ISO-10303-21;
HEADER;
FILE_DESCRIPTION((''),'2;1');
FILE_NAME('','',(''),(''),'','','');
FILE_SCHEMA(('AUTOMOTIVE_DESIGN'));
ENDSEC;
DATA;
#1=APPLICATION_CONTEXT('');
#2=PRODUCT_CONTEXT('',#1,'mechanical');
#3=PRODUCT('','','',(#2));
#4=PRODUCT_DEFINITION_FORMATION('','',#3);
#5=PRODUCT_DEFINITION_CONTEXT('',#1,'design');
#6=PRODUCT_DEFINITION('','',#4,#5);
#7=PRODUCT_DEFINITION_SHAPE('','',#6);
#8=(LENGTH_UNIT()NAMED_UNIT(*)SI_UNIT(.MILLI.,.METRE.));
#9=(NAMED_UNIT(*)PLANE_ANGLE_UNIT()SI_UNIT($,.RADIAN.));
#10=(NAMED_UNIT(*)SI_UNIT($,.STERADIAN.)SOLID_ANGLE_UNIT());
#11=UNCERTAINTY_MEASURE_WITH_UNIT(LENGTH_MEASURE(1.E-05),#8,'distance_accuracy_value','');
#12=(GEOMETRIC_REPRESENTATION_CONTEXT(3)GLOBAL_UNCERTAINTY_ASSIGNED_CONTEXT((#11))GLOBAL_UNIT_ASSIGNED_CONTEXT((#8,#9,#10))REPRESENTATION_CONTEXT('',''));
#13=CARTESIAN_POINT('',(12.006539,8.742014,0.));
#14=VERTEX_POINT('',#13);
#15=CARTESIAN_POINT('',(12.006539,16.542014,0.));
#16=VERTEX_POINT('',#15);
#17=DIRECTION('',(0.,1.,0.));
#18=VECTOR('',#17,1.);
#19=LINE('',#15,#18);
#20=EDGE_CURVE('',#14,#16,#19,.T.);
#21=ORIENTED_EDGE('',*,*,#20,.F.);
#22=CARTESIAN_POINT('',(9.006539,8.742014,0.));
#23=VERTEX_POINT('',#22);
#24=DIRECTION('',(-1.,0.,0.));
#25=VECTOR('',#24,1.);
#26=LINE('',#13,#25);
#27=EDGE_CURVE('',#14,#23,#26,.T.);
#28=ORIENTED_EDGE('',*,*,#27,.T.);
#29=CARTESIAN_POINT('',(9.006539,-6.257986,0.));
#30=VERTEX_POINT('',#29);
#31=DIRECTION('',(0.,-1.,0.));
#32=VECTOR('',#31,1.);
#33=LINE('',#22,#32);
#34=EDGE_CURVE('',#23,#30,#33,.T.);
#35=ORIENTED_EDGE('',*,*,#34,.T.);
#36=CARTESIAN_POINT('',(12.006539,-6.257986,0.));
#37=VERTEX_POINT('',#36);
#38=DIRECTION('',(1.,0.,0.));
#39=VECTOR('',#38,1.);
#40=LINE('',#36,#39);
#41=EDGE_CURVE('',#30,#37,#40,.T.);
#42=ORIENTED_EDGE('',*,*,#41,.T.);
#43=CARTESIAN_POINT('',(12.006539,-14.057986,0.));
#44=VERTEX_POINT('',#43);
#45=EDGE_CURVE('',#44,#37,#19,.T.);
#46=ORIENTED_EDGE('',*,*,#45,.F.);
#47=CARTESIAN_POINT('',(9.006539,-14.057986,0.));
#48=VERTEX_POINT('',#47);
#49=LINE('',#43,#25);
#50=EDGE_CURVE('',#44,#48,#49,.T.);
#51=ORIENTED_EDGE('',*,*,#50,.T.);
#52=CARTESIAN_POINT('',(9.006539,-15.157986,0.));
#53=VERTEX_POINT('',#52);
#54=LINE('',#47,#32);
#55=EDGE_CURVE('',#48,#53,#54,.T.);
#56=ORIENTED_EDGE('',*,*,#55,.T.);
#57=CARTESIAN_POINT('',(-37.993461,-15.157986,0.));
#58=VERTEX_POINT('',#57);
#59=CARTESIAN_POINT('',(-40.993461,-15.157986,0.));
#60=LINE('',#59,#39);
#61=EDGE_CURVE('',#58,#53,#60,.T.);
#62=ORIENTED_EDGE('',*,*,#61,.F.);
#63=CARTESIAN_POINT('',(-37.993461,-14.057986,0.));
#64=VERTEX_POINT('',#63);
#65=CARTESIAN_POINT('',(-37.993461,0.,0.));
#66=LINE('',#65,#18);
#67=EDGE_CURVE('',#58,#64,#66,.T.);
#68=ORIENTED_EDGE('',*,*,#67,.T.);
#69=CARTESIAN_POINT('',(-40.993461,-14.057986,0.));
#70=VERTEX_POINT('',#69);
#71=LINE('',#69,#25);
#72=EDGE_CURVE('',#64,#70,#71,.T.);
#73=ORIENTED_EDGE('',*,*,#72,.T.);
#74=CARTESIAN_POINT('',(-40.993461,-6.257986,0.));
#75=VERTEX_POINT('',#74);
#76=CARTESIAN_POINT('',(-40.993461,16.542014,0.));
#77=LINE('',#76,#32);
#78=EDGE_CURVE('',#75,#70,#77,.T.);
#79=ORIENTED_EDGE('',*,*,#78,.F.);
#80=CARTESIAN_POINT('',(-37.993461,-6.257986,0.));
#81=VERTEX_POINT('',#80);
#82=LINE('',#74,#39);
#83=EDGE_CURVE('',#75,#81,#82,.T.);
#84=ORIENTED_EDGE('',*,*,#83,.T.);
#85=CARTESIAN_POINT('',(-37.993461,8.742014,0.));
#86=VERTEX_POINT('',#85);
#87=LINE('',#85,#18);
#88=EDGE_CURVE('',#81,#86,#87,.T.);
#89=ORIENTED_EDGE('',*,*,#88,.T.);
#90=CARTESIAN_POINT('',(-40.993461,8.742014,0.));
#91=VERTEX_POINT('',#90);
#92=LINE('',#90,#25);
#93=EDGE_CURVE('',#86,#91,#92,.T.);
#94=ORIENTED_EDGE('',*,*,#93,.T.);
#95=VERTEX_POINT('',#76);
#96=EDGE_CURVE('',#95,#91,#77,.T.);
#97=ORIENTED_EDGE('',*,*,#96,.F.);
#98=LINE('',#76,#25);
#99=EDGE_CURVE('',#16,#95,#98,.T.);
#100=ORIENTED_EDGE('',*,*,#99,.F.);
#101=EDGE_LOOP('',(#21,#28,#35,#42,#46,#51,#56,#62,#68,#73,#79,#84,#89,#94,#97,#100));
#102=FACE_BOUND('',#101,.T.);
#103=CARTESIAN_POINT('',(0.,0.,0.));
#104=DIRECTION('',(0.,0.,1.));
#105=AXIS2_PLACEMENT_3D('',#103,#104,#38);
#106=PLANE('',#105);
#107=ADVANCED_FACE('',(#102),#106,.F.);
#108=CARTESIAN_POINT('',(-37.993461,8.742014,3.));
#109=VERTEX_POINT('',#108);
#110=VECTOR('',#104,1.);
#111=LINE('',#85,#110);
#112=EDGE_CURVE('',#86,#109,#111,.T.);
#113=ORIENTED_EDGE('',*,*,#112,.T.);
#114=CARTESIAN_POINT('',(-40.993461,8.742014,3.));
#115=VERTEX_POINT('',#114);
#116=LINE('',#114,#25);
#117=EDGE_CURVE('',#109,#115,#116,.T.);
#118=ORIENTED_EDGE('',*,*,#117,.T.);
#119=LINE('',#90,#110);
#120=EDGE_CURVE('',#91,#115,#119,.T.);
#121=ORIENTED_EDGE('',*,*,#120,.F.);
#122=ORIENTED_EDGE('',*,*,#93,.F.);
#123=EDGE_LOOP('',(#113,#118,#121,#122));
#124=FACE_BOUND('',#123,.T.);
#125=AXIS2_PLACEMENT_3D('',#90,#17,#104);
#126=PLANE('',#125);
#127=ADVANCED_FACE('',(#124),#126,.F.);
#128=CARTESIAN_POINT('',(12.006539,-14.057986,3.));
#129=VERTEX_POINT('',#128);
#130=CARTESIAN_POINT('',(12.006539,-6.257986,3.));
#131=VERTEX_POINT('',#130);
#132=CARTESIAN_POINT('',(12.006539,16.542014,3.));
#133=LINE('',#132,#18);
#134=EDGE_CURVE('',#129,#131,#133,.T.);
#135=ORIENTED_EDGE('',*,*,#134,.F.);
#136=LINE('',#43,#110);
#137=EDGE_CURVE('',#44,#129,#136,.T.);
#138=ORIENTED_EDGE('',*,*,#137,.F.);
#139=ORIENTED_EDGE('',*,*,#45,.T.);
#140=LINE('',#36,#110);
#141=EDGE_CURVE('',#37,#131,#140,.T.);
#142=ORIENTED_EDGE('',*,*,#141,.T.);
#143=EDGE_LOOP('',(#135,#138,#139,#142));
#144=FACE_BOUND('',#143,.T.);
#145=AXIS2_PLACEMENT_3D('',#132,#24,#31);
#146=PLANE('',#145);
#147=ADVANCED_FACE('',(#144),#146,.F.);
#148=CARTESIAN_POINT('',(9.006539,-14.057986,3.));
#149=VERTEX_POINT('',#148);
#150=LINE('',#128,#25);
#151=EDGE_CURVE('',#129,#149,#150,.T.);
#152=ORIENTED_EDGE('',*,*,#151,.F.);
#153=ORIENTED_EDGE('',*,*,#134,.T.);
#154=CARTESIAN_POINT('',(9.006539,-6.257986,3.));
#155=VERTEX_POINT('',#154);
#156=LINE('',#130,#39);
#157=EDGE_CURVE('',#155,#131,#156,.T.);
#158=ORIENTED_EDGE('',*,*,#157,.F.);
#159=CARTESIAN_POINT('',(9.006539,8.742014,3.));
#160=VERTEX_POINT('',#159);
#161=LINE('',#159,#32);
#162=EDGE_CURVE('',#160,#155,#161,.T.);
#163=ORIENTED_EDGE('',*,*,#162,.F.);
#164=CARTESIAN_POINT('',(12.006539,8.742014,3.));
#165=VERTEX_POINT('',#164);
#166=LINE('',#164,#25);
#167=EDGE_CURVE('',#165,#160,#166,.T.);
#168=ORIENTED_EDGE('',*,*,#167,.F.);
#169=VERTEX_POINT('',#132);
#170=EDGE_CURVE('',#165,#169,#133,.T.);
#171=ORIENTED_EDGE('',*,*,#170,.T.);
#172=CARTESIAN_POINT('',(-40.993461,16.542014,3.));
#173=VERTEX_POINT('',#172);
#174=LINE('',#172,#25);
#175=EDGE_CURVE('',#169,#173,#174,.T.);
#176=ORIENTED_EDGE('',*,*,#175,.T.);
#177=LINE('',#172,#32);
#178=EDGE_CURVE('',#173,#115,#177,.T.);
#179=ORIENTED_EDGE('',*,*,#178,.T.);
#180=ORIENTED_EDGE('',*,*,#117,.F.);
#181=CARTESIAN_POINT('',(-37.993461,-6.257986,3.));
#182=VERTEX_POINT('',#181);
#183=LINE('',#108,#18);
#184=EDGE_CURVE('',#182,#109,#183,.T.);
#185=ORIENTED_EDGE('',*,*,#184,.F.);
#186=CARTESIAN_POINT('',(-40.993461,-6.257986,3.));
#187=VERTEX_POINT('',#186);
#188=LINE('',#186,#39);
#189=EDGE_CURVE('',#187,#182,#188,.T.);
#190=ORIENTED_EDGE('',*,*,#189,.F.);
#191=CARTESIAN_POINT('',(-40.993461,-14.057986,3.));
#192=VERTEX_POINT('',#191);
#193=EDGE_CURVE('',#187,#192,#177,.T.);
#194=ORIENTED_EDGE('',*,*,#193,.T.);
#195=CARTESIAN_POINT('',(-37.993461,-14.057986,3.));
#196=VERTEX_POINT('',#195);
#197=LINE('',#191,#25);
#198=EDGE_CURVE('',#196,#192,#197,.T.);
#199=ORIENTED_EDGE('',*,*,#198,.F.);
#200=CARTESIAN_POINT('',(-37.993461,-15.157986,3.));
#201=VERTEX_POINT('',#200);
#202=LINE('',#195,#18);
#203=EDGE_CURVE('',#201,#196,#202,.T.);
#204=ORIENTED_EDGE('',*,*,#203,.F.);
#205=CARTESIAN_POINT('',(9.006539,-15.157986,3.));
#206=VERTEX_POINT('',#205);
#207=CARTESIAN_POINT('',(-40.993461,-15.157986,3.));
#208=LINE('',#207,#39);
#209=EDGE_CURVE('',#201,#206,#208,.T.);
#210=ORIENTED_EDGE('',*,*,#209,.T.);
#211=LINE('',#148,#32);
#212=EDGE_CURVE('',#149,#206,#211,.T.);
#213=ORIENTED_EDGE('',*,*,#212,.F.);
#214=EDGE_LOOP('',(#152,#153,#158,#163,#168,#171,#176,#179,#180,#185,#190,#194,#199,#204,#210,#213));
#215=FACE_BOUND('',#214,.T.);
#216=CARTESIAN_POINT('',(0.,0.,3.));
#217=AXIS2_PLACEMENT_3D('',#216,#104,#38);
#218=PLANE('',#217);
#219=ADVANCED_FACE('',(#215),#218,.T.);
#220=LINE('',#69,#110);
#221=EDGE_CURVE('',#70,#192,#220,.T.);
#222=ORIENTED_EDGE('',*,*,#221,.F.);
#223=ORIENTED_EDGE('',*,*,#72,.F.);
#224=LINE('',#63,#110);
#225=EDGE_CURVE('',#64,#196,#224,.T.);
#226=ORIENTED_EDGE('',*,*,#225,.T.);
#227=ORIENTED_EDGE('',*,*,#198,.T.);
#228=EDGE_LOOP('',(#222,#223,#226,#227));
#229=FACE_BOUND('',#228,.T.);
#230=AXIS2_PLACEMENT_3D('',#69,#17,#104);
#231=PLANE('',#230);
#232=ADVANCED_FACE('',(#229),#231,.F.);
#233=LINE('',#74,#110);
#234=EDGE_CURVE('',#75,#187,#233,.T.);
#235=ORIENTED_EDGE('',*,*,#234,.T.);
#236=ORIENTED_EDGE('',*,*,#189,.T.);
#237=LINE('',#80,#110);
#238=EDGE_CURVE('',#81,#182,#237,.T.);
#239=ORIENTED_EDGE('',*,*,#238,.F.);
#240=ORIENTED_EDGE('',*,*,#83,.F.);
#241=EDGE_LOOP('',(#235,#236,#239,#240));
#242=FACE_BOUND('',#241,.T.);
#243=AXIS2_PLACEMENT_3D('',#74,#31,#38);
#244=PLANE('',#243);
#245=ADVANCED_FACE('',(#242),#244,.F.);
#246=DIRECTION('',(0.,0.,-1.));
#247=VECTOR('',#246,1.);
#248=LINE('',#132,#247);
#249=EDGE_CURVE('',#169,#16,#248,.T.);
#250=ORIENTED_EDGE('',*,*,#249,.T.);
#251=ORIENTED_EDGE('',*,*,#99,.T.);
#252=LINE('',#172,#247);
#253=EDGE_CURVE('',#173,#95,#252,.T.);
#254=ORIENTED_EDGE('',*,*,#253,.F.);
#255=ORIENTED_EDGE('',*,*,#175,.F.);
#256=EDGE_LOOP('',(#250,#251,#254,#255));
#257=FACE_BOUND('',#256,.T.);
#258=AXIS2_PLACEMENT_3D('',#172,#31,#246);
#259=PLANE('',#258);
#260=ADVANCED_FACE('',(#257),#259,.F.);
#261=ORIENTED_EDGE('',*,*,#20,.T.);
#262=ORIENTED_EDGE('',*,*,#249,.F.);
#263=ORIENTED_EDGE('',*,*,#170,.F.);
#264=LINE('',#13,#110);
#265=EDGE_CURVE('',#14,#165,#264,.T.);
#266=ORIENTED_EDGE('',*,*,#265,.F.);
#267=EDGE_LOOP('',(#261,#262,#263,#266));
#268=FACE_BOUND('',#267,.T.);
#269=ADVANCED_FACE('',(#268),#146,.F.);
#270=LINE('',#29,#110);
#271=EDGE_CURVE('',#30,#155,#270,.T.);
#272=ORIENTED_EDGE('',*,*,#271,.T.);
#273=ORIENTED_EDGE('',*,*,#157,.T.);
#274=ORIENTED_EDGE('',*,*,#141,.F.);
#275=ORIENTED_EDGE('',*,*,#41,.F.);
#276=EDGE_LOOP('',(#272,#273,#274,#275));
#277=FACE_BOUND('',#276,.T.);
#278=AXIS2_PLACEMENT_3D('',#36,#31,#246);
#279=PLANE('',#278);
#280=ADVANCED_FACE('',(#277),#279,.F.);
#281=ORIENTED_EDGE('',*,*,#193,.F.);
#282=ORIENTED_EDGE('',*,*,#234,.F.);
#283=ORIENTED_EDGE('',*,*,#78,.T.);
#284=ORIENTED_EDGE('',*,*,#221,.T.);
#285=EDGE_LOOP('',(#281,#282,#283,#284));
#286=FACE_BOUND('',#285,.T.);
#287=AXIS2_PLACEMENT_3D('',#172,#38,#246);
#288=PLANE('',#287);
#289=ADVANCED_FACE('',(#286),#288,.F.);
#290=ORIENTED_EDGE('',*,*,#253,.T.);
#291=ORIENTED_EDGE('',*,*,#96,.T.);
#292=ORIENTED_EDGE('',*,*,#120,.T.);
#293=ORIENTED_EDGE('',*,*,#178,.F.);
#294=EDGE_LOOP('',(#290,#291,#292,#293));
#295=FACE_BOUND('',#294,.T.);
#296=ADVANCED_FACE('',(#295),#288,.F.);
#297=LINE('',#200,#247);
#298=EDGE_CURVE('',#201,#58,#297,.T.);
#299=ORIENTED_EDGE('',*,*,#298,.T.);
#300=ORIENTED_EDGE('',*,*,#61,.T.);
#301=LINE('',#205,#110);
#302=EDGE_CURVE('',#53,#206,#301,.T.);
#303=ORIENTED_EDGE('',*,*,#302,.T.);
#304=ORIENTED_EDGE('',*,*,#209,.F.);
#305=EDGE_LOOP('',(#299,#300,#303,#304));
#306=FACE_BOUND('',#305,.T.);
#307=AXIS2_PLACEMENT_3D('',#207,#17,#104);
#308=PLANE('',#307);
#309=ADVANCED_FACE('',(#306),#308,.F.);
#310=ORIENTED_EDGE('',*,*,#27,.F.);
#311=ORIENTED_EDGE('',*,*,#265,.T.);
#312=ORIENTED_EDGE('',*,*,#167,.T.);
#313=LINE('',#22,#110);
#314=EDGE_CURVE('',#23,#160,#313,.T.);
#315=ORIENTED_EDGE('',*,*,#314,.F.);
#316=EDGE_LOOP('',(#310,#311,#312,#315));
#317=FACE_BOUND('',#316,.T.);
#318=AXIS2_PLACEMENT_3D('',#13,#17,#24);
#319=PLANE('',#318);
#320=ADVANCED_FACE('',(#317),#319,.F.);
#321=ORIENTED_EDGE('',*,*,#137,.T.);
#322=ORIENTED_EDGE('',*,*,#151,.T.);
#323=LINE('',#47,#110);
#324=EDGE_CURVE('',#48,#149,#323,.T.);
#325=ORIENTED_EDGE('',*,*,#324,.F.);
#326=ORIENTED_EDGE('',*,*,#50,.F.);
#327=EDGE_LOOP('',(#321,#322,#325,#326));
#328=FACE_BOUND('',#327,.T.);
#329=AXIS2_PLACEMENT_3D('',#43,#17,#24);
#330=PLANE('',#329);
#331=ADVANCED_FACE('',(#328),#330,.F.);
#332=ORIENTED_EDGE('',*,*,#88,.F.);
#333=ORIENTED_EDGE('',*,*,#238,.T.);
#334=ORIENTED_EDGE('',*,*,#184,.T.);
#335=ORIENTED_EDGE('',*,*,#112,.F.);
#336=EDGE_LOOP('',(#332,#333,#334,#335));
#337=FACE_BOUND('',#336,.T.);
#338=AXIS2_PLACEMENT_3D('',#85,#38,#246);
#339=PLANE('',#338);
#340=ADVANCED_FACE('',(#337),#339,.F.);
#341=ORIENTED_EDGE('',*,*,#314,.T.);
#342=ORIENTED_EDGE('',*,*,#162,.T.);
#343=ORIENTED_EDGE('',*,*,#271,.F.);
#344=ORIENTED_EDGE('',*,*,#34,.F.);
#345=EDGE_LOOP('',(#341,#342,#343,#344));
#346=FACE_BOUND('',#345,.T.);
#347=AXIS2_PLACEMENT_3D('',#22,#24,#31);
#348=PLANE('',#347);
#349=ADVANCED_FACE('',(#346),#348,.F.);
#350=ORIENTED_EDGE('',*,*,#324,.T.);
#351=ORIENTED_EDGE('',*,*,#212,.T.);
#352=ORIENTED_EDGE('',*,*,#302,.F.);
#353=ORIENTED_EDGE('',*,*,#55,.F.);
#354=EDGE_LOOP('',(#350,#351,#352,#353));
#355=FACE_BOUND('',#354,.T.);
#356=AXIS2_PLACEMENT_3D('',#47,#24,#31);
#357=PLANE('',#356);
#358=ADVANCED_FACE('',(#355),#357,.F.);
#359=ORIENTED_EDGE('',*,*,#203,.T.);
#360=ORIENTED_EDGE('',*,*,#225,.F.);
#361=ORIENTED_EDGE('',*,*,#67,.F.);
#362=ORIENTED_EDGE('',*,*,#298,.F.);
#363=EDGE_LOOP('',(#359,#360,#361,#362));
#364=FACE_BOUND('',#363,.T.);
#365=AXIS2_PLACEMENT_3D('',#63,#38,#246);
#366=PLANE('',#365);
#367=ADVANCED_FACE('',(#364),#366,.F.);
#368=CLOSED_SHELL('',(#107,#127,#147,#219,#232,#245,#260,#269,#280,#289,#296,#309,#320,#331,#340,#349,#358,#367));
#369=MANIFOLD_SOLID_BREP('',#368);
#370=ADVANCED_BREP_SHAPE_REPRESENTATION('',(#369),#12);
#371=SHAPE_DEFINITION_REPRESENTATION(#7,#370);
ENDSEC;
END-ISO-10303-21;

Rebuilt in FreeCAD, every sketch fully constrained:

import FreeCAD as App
import Part
import Sketcher
from FreeCAD import Vector

doc = App.newDocument("Part")
params = doc.addObject("Spreadsheet::Sheet", "Params")
for row, (alias, value) in enumerate([
    ("sketch1_width", "53 mm"),
    ("sketch1_height", "31.7 mm"),
    ("pad1_length", "3 mm"),
    ("sketch2_width", "3 mm"),
    ("sketch2_height", "15 mm"),
    ("linearpattern_pitch", "22.8 mm"),
], start=1):
    params.set(f"A{row}", alias)
    params.set(f"B{row}", "=" + value)
    params.setAlias(f"B{row}", alias)

body = doc.addObject("PartDesign::Body", "Body")

# Sketch on XY plane
sketch1 = body.newObject("Sketcher::SketchObject", "Sketch")
sketch1.AttachmentSupport = (doc.getObject("XY_Plane"), [""])
sketch1.MapMode = "FlatFace"
sketch1.addGeometry([
    Part.LineSegment(Vector(-41, 17, 0), Vector(-41, -15, 0)),
    Part.LineSegment(Vector(-41, -15, 0), Vector(12, -15, 0)),
    Part.LineSegment(Vector(12, -15, 0), Vector(12, 17, 0)),
    Part.LineSegment(Vector(12, 17, 0), Vector(-41, 17, 0)),
], False)
sketch1.addConstraint([
    Sketcher.Constraint("Coincident", 0, 2, 1, 1),
    Sketcher.Constraint("Coincident", 1, 2, 2, 1),
    Sketcher.Constraint("Coincident", 2, 2, 3, 1),
    Sketcher.Constraint("Coincident", 3, 2, 0, 1),
    Sketcher.Constraint("Vertical", 0),
    Sketcher.Constraint("Horizontal", 1),
    Sketcher.Constraint("Vertical", 2),
    Sketcher.Constraint("Horizontal", 3),
    Sketcher.Constraint("DistanceX", 1, 1, 1, 2, 53.0),
    Sketcher.Constraint("DistanceY", 0, 2, 0, 1, 31.7),
    Sketcher.Constraint("DistanceX", 0, 2, -1, 1, 40.993461),
    Sketcher.Constraint("DistanceY", 0, 2, -1, 1, 15.157986),
])
sketch1.setExpression("Constraints[8]", "Params.sketch1_width")
sketch1.setExpression("Constraints[9]", "Params.sketch1_height")
pad1 = body.newObject("PartDesign::Pad", "Pad")
pad1.Profile = sketch1
pad1.setExpression("Length", "Params.pad1_length")

# Sketch on XY plane
sketch2 = body.newObject("Sketcher::SketchObject", "Sketch001")
sketch2.AttachmentSupport = (doc.getObject("XY_Plane"), [""])
sketch2.MapMode = "FlatFace"
sketch2.AttachmentOffset = App.Placement(Vector(0, 0, 3), App.Rotation())
sketch2.addGeometry([
    Part.LineSegment(Vector(-41, 8.7, 0), Vector(-41, -6.3, 0)),  # 0
    Part.LineSegment(Vector(-41, -6.3, 0), Vector(-38, -6.3, 0)),  # 1
    Part.LineSegment(Vector(-38, -6.3, 0), Vector(-38, 8.7, 0)),  # 2
    Part.LineSegment(Vector(-38, 8.7, 0), Vector(-41, 8.7, 0)),  # 3
    Part.LineSegment(Vector(9, 8.7, 0), Vector(9, -6.3, 0)),  # 4
    Part.LineSegment(Vector(9, -6.3, 0), Vector(12, -6.3, 0)),  # 5
    Part.LineSegment(Vector(12, -6.3, 0), Vector(12, 8.7, 0)),  # 6
    Part.LineSegment(Vector(12, 8.7, 0), Vector(9, 8.7, 0)),  # 7
], False)
sketch2.addConstraint([
    Sketcher.Constraint("Coincident", 0, 2, 1, 1),
    Sketcher.Constraint("Coincident", 1, 2, 2, 1),
    Sketcher.Constraint("Coincident", 2, 2, 3, 1),
    Sketcher.Constraint("Coincident", 3, 2, 0, 1),
    Sketcher.Constraint("Coincident", 4, 2, 5, 1),
    Sketcher.Constraint("Coincident", 5, 2, 6, 1),
    Sketcher.Constraint("Coincident", 6, 2, 7, 1),
    Sketcher.Constraint("Coincident", 7, 2, 4, 1),
    Sketcher.Constraint("Vertical", 0),
    Sketcher.Constraint("Horizontal", 1),
    Sketcher.Constraint("Vertical", 2),
    Sketcher.Constraint("Horizontal", 3),
    Sketcher.Constraint("Vertical", 4),
    Sketcher.Constraint("Horizontal", 5),
    Sketcher.Constraint("Vertical", 6),
    Sketcher.Constraint("Horizontal", 7),
    Sketcher.Constraint("Horizontal", 1, 2, 4, 2),
    Sketcher.Constraint("Horizontal", 3, 2, 6, 2),
    Sketcher.Constraint("Equal", 3, 5),
    Sketcher.Constraint("DistanceX", 1, 1, 1, 2, 3.0),
    Sketcher.Constraint("DistanceY", 0, 2, 0, 1, 15.0),
    Sketcher.Constraint("DistanceX", 1, 2, 4, 2, 47.0),
    Sketcher.Constraint("DistanceX", 0, 2, -1, 1, 40.993461),
    Sketcher.Constraint("DistanceY", 0, 2, -1, 1, 6.257986),
])
sketch2.setExpression("Constraints[19]", "Params.sketch2_width")
sketch2.setExpression("Constraints[20]", "Params.sketch2_height")
pocket1 = body.newObject("PartDesign::Pocket", "Pocket")
pocket1.Profile = sketch2
pocket1.Type = "ThroughAll"
doc.recompute()

linearpattern = body.newObject("PartDesign::LinearPattern", "LinearPattern")
linearpattern.Originals = [pocket1]
linearpattern.Direction = (doc.getObject("Y_Axis"), [""])
linearpattern.Mode = "offset"
linearpattern.setExpression("Offset", "Params.linearpattern_pitch")
linearpattern.Occurrences = 3
linearpattern.Reversed = True
body.Tip = linearpattern

doc.recompute()
